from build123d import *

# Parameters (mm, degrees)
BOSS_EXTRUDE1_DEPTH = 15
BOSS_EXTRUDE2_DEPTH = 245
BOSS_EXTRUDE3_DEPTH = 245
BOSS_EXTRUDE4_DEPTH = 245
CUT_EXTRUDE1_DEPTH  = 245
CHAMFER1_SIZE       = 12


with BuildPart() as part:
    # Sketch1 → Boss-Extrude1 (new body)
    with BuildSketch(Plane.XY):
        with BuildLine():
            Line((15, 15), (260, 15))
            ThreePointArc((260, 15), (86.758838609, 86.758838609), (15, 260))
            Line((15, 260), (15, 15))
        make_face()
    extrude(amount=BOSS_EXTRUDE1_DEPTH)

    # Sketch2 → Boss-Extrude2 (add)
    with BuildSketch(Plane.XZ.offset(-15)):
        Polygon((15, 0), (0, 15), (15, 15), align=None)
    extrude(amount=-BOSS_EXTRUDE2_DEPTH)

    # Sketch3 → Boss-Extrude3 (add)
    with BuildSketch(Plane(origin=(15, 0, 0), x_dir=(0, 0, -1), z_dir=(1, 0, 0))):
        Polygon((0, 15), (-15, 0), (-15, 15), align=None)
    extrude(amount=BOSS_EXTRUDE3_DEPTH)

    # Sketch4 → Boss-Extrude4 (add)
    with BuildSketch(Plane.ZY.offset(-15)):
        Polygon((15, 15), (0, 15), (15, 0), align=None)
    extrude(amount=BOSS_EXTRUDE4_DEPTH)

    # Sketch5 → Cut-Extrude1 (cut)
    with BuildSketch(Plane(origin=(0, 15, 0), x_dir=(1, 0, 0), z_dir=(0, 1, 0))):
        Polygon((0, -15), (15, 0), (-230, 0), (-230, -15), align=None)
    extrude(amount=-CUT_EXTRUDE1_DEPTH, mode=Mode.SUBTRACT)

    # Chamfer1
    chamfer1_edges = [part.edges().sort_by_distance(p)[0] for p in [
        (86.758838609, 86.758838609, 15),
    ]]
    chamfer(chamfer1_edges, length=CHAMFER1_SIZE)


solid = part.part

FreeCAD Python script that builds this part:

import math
import FreeCAD as App
import Part
import Sketcher


def edges_at(feature, points):
    """Names of the edges that pass closest to the given points."""
    edges = feature.Shape.Edges
    near = lambda p: min(range(len(edges)), key=lambda i: edges[i].distToShape(Part.Vertex(*p))[0])
    return sorted({f"Edge{near(p) + 1}" for p in points})


def add_polygon(sketch, points):
    """Adds a closed chain of lines whose ends are joined by coincident constraints."""
    first, n = sketch.GeometryCount, len(points)
    for a, b in zip(points, points[1:] + points[:1]):
        sketch.addGeometry(Part.LineSegment(App.Vector(*a, 0), App.Vector(*b, 0)), False)
    for i in range(n):
        sketch.addConstraint(Sketcher.Constraint("Coincident", first + i, 2, first + (i + 1) % n, 1))

doc = App.newDocument("Part")
params = doc.addObject("Spreadsheet::Sheet", "Params")
for row, (alias, value) in enumerate([
    ("sketch1_radius", "245 mm"),
    ("pad1_length", "15 mm"),
    ("sketch2_width", "15 mm"),
    ("pad2_length", "245 mm"),
    ("sketch3_width", "15 mm"),
    ("pad3_length", "245 mm"),
    ("sketch4_width", "15 mm"),
    ("pad4_length", "245 mm"),
    ("sketch5_width", "245 mm"),
    ("sketch5_width2", "230 mm"),
    ("sketch5_height", "15 mm"),
    ("pocket1_length", "245 mm"),
    ("chamfer_size", "12 mm"),
], start=1):
    params.set(f"A{row}", alias)
    params.set(f"B{row}", "=" + value)
    params.setAlias(f"B{row}", alias)

body = doc.addObject("PartDesign::Body", "Body")

sketch1 = body.newObject("Sketcher::SketchObject", "Sketch")
sketch1.AttachmentSupport = (doc.getObject("XY_Plane"), [""])
sketch1.MapMode = "FlatFace"
sketch1.addGeometry([
    Part.LineSegment(App.Vector(15, 15, 0), App.Vector(260, 15, 0)),
    Part.ArcOfCircle(Part.Circle(App.Vector(260, 260, 0), App.Vector(0, 0, 1), 245), math.radians(180), math.radians(270)),
    Part.LineSegment(App.Vector(15, 260, 0), App.Vector(15, 15, 0)),
], False)
sketch1.addConstraint([
    Sketcher.Constraint("Tangent", 0, 2, 1, 2),
    Sketcher.Constraint("Tangent", 1, 1, 2, 1),
    Sketcher.Constraint("Coincident", 2, 2, 0, 1),
    Sketcher.Constraint("Horizontal", 0),
    Sketcher.Constraint("Vertical", 2),
    Sketcher.Constraint("Radius", 1, 245.0),
    Sketcher.Constraint("DistanceX", -1, 1, 1, 3, 260.0),
    Sketcher.Constraint("DistanceY", -1, 1, 1, 3, 260.0),
])
sketch1.setExpression("Constraints[5]", "Params.sketch1_radius")
pad1 = body.newObject("PartDesign::Pad", "Pad")
pad1.Profile = sketch1
pad1.setExpression("Length", "Params.pad1_length")

sketch2 = body.newObject("Sketcher::SketchObject", "Sketch001")
sketch2.AttachmentSupport = (doc.getObject("XZ_Plane"), [""])
sketch2.MapMode = "FlatFace"
sketch2.AttachmentOffset = App.Placement(App.Vector(0, 0, -15), App.Rotation())
add_polygon(sketch2, [(0, 15), (15, 0), (15, 15)])
sketch2.addConstraint([
    Sketcher.Constraint("Vertical", 1),
    Sketcher.Constraint("Horizontal", 2),
    Sketcher.Constraint("PointOnObject", 0, 2, -1),
    Sketcher.Constraint("PointOnObject", 2, 2, -2),
    Sketcher.Constraint("Equal", 2, 1),
    Sketcher.Constraint("DistanceX", 2, 2, 2, 1, 15.0),
])
sketch2.setExpression("Constraints[8]", "Params.sketch2_width")
pad2 = body.newObject("PartDesign::Pad", "Pad001")
pad2.Profile = sketch2
pad2.setExpression("Length", "Params.pad2_length")
pad2.Reversed = True

sketch3 = body.newObject("Sketcher::SketchObject", "Sketch002")
sketch3.AttachmentSupport = (doc.getObject("YZ_Plane"), [""])
sketch3.MapMode = "FlatFace"
sketch3.AttachmentOffset = App.Placement(App.Vector(0, 0, 15), App.Rotation())
add_polygon(sketch3, [(0, 15), (15, 0), (15, 15)])
sketch3.addConstraint([
    Sketcher.Constraint("Vertical", 1),
    Sketcher.Constraint("Horizontal", 2),
    Sketcher.Constraint("PointOnObject", 0, 2, -1),
    Sketcher.Constraint("PointOnObject", 2, 2, -2),
    Sketcher.Constraint("Equal", 2, 1),
    Sketcher.Constraint("DistanceX", 2, 2, 2, 1, 15.0),
])
sketch3.setExpression("Constraints[8]", "Params.sketch3_width")
pad3 = body.newObject("PartDesign::Pad", "Pad002")
pad3.Profile = sketch3
pad3.setExpression("Length", "Params.pad3_length")

sketch4 = body.newObject("Sketcher::SketchObject", "Sketch003")
sketch4.AttachmentSupport = (doc.getObject("YZ_Plane"), [""])
sketch4.MapMode = "FlatFace"
sketch4.AttachmentOffset = App.Placement(App.Vector(0, 0, 15), App.Rotation())
add_polygon(sketch4, [(15, 15), (15, 0), (0, 15)])
sketch4.addConstraint([
    Sketcher.Constraint("Vertical", 0),
    Sketcher.Constraint("Horizontal", 2),
    Sketcher.Constraint("PointOnObject", 0, 2, -1),
    Sketcher.Constraint("PointOnObject", 1, 2, -2),
    Sketcher.Constraint("Equal", 2, 0),
    Sketcher.Constraint("DistanceX", 2, 1, 2, 2, 15.0),
])
sketch4.setExpression("Constraints[8]", "Params.sketch4_width")
pad4 = body.newObject("PartDesign::Pad", "Pad003")
pad4.Profile = sketch4
pad4.setExpression("Length", "Params.pad4_length")
pad4.Reversed = True

sketch5 = body.newObject("Sketcher::SketchObject", "Sketch004")
sketch5.AttachmentSupport = (doc.getObject("XZ_Plane"), [""])
sketch5.MapMode = "FlatFace"
sketch5.AttachmentOffset = App.Placement(App.Vector(0, 0, -15), App.Rotation())
add_polygon(sketch5, [(0, 15), (15, 0), (-230, 0), (-230, 15)])
sketch5.addConstraint([
    Sketcher.Constraint("Horizontal", 1),
    Sketcher.Constraint("Vertical", 2),
    Sketcher.Constraint("Horizontal", 3),
    Sketcher.Constraint("PointOnObject", 0, 2, -1),
    Sketcher.Constraint("PointOnObject", 3, 2, -2),
    Sketcher.Constraint("DistanceX", 1, 2, 1, 1, 245.0),
    Sketcher.Constraint("DistanceX", 3, 1, 3, 2, 230.0),
    Sketcher.Constraint("DistanceY", 2, 1, 2, 2, 15.0),
])
sketch5.setExpression("Constraints[9]", "Params.sketch5_width")
sketch5.setExpression("Constraints[10]", "Params.sketch5_width2")
sketch5.setExpression("Constraints[11]", "Params.sketch5_height")
pocket1 = body.newObject("PartDesign::Pocket", "Pocket")
pocket1.Profile = sketch5
pocket1.setExpression("Length", "Params.pocket1_length")
pocket1.Reversed = True
doc.recompute()

chamfer = body.newObject("PartDesign::Chamfer", "Chamfer")
chamfer.Base = (pocket1, edges_at(pocket1, [(86.759, 86.759, 15)]))
chamfer.setExpression("Size", "Params.chamfer_size")

doc.recompute()
